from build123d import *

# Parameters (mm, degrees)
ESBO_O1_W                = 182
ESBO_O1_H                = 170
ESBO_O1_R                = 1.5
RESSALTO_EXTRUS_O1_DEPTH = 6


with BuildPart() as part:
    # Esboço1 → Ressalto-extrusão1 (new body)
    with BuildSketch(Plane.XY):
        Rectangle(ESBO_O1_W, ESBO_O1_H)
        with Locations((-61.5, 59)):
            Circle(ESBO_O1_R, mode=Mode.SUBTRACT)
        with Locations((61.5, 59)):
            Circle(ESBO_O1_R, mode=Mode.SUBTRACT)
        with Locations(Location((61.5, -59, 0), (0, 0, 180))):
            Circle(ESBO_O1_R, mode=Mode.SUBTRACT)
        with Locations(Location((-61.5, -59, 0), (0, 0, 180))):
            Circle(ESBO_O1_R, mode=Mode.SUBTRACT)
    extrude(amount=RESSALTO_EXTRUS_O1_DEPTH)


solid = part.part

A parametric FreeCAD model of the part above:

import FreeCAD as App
import Part
import Sketcher
from FreeCAD import Vector
Q = App.Units.Quantity


def add_polygon(sketch, points):
    """Adds a closed chain of lines whose ends are joined by coincident constraints."""
    first, n = sketch.GeometryCount, len(points)
    for a, b in zip(points, points[1:] + points[:1]):
        sketch.addGeometry(Part.LineSegment(App.Vector(*a, 0), App.Vector(*b, 0)), False)
    for i in range(n):
        sketch.addConstraint(Sketcher.Constraint("Coincident", first + i, 2, first + (i + 1) % n, 1))

doc = App.newDocument("Part")
body = doc.addObject("PartDesign::Body", "Body")

# Sketch on XY plane
sketch1 = doc.addObject("Sketcher::SketchObject", "Sketch")
body.addObject(sketch1)
sketch1.AttachmentSupport = (doc.XY_Plane, [""])
sketch1.MapMode = "FlatFace"
add_polygon(sketch1, [(-91, 85), (-91, -85), (91, -85), (91, 85)])  # lines 0-3
sketch1.addGeometry(Part.Circle(Vector(-61.5, -59, 0), Vector(0, 0, 1), 1.5), False)  # 4
sketch1.addGeometry(Part.Circle(Vector(61.5, -59, 0), Vector(0, 0, 1), 1.5), False)  # 5
sketch1.addGeometry(Part.Circle(Vector(-61.5, 59, 0), Vector(0, 0, 1), 1.5), False)  # 6
sketch1.addGeometry(Part.Circle(Vector(61.5, 59, 0), Vector(0, 0, 1), 1.5), False)  # 7
sketch1.addConstraint([
    Sketcher.Constraint("Vertical", 0),
    Sketcher.Constraint("Horizontal", 1),
    Sketcher.Constraint("Vertical", 2),
    Sketcher.Constraint("Horizontal", 3),
    Sketcher.Constraint("Equal", 4, 5),
    Sketcher.Constraint("Equal", 5, 6),
    Sketcher.Constraint("Equal", 6, 7),
    Sketcher.Constraint("Symmetric", 5, 3, 6, 3, -1, 1),
    Sketcher.Constraint("Symmetric", 4, 3, 7, 3, -1, 1),
    Sketcher.Constraint("Symmetric", 0, 2, 2, 2, -1, 1),
    Sketcher.Constraint("Symmetric", 4, 3, 5, 3, -2),
    Sketcher.Constraint("Diameter", 4, Q("3 mm")),
    Sketcher.Constraint("DistanceX", 1, 1, 1, 2, Q("182 mm")),
    Sketcher.Constraint("DistanceY", 0, 2, 0, 1, Q("170 mm")),
    Sketcher.Constraint("DistanceY", 4, 3, -1, 1, Q("59 mm")),
    Sketcher.Constraint("DistanceX", 4, 3, 5, 3, Q("123 mm")),
])
pad1 = doc.addObject("PartDesign::Pad", "Pad")
body.addObject(pad1)
pad1.Profile = sketch1
pad1.Length = 6

doc.recompute()
